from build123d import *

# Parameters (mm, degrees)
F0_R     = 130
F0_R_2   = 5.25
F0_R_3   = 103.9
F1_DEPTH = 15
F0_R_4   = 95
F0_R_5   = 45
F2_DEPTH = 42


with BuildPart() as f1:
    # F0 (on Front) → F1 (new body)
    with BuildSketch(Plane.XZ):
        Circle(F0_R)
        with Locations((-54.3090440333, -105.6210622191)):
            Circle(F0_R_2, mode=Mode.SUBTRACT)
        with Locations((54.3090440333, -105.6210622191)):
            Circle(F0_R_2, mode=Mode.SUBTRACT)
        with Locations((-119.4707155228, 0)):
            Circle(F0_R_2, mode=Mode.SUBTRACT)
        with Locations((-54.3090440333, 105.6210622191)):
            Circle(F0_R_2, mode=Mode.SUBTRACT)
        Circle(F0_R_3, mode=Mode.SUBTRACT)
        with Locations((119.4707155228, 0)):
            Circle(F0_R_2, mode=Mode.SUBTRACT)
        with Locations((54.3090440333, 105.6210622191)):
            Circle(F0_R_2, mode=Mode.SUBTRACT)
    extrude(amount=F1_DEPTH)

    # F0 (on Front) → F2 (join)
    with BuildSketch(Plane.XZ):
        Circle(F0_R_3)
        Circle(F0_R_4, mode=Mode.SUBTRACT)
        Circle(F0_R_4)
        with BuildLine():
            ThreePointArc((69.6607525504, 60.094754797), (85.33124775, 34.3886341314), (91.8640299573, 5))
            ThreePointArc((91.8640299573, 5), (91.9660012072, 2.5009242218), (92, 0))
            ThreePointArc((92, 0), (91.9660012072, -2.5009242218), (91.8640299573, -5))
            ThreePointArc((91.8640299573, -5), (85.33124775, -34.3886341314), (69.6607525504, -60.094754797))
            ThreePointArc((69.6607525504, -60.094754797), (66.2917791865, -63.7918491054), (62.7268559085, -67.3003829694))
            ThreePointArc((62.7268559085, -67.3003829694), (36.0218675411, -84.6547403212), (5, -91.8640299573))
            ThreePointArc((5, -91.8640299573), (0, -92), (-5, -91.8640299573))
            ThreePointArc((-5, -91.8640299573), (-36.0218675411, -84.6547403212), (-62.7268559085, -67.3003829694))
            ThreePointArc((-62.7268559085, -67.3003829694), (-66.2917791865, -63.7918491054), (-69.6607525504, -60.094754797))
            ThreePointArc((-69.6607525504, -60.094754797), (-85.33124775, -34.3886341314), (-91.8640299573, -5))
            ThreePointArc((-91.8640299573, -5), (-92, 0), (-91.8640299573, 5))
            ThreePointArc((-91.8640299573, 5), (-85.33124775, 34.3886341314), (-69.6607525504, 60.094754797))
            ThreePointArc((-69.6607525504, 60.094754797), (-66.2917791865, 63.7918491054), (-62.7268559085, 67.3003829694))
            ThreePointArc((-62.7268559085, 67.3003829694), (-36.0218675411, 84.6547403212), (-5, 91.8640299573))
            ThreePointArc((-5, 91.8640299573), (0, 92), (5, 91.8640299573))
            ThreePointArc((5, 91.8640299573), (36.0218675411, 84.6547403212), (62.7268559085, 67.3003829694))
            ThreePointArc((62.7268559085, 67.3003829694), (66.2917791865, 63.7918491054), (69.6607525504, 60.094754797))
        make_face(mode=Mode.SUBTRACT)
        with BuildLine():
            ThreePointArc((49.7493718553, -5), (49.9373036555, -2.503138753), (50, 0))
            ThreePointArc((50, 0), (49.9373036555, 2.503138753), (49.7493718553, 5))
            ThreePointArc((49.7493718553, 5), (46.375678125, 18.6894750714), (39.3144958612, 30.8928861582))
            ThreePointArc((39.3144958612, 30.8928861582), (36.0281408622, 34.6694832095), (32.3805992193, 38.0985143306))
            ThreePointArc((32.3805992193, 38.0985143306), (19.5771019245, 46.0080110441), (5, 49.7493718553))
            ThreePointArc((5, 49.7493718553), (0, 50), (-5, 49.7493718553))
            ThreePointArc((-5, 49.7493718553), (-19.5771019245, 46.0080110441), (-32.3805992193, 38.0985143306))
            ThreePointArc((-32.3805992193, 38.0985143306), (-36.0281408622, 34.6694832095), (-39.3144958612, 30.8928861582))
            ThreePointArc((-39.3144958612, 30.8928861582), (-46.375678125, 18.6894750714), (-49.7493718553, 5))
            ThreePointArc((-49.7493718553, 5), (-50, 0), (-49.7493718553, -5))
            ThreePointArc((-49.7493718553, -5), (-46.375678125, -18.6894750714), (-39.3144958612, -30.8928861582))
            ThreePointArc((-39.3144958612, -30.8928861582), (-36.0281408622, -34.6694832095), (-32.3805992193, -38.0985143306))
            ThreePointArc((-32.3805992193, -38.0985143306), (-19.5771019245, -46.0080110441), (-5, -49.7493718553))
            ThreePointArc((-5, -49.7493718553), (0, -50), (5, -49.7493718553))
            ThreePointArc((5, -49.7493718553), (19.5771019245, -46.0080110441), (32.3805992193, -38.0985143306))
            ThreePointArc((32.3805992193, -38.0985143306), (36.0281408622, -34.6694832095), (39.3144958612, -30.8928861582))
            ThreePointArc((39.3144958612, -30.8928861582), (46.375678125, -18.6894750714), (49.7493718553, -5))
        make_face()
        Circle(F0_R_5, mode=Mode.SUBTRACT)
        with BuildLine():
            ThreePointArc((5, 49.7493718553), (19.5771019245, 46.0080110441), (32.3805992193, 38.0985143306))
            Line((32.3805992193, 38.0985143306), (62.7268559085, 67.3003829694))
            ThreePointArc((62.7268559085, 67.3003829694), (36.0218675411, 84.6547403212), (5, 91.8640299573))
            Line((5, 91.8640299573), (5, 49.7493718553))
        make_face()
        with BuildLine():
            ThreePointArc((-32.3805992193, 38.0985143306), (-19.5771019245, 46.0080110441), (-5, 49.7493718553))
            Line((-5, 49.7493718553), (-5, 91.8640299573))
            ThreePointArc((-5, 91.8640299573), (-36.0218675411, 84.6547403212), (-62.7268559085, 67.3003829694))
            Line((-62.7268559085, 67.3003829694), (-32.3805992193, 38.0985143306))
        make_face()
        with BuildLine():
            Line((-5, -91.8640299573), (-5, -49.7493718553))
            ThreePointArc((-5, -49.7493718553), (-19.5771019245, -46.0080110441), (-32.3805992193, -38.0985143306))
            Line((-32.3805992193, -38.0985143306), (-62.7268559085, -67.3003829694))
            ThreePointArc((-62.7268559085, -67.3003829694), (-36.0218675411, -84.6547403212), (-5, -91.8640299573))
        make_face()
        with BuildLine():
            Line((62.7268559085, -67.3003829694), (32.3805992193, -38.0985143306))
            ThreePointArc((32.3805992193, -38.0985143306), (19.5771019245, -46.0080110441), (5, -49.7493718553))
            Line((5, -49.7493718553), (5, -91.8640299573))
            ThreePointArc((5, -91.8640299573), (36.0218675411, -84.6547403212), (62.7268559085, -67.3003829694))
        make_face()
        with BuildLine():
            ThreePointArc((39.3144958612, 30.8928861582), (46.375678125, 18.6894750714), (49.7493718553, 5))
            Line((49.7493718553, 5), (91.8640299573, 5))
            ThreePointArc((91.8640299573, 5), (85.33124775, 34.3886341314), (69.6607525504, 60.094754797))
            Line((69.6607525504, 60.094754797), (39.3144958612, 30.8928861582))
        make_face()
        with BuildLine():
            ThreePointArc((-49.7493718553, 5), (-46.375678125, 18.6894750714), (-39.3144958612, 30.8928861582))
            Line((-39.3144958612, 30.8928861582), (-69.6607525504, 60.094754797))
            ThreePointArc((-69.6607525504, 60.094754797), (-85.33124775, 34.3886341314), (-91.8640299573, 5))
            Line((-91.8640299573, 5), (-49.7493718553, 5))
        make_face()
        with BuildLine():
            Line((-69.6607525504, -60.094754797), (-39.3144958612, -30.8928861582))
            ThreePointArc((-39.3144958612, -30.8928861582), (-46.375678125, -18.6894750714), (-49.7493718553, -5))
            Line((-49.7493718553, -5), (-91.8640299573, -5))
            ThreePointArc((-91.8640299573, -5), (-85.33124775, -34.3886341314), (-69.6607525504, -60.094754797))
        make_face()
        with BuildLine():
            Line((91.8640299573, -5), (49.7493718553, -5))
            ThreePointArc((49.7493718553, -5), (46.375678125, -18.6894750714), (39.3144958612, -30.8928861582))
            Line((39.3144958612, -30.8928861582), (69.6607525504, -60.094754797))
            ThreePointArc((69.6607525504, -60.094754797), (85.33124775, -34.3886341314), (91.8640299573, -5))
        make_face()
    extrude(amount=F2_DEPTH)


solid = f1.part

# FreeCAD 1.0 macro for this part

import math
import FreeCAD as App
import Part
import Sketcher
from FreeCAD import Vector
Q = App.Units.Quantity

doc = App.newDocument("Part")
body = doc.addObject("PartDesign::Body", "Body")

sketch1 = body.newObject("Sketcher::SketchObject", "Sketch")
sketch1.AttachmentSupport = (doc.getObject("XZ_Plane"), [""])
sketch1.MapMode = "FlatFace"
sketch1.addGeometry(Part.Circle(Vector(0, 0, 0), Vector(0, 0, 1), 130), False)
sketch1.addGeometry(Part.Circle(Vector(-54, -106, 0), Vector(0, 0, 1), 5), False)
sketch1.addGeometry(Part.Circle(Vector(54, -106, 0), Vector(0, 0, 1), 5), False)
sketch1.addGeometry(Part.Circle(Vector(-119, 0, 0), Vector(0, 0, 1), 5), False)
sketch1.addGeometry(Part.Circle(Vector(0, 0, 0), Vector(0, 0, 1), 104), False)
sketch1.addGeometry(Part.Circle(Vector(-54, 106, 0), Vector(0, 0, 1), 5), False)
sketch1.addGeometry(Part.Circle(Vector(119, 0, 0), Vector(0, 0, 1), 5), False)
sketch1.addGeometry(Part.Circle(Vector(54, 106, 0), Vector(0, 0, 1), 5), False)
sketch1.addConstraint(Sketcher.Constraint("Coincident", 0, 3, -1, 1))
sketch1.addConstraint(Sketcher.Constraint("Coincident", 4, 3, -1, 1))
sketch1.addConstraint(Sketcher.Constraint("Equal", 1, 2))
sketch1.addConstraint(Sketcher.Constraint("Equal", 2, 3))
sketch1.addConstraint(Sketcher.Constraint("Equal", 3, 5))
sketch1.addConstraint(Sketcher.Constraint("Equal", 5, 6))
sketch1.addConstraint(Sketcher.Constraint("Equal", 6, 7))
sketch1.addConstraint(Sketcher.Constraint("Symmetric", 2, 3, 5, 3, -1, 1))
sketch1.addConstraint(Sketcher.Constraint("Symmetric", 3, 3, 6, 3, -1, 1))
sketch1.addConstraint(Sketcher.Constraint("Symmetric", 1, 3, 7, 3, -1, 1))
sketch1.addConstraint(Sketcher.Constraint("Symmetric", 1, 3, 2, 3, -2))
sketch1.addConstraint(Sketcher.Constraint("PointOnObject", 3, 3, -1))
sketch1.addConstraint(Sketcher.Constraint("Diameter", 0, Q("260 mm")))
sketch1.addConstraint(Sketcher.Constraint("Diameter", 1, Q("10.5 mm")))
sketch1.addConstraint(Sketcher.Constraint("Diameter", 4, Q("207.8 mm")))
sketch1.addConstraint(Sketcher.Constraint("DistanceX", 1, 3, 2, 3, Q("108.618088 mm")))
sketch1.addConstraint(Sketcher.Constraint("DistanceX", 3, 3, 1, 3, Q("65.161671 mm")))
sketch1.addConstraint(Sketcher.Constraint("DistanceY", 1, 3, -1, 1, Q("105.621062 mm")))
pad1 = body.newObject("PartDesign::Pad", "Pad")
pad1.Profile = sketch1
pad1.Length = 15

sketch2 = body.newObject("Sketcher::SketchObject", "Sketch001")
sketch2.AttachmentSupport = (doc.getObject("XZ_Plane"), [""])
sketch2.MapMode = "FlatFace"
sketch2.addGeometry(Part.Circle(Vector(0, 0, 0), Vector(0, 0, 1), 104), False)
sketch2.addGeometry(Part.ArcOfCircle(Part.Circle(Vector(0, 0, 0), Vector(0, 0, 1), 92), math.radians(40.78), math.radians(47.01)), False)
sketch2.addGeometry(Part.LineSegment(Vector(70, 60, 0), Vector(39, 31, 0)), False)
sketch2.addGeometry(Part.ArcOfCircle(Part.Circle(Vector(0, 0, 0), Vector(0, 0, 1), 50), math.radians(38.16), math.radians(49.64)), False)
sketch2.addGeometry(Part.LineSegment(Vector(32, 38, 0), Vector(63, 67, 0)), False)
sketch2.addGeometry(Part.ArcOfCircle(Part.Circle(Vector(0, 0, 0), Vector(0, 0, 1), 92), math.radians(0), math.radians(3.12)), False)
sketch2.addGeometry(Part.ArcOfCircle(Part.Circle(Vector(0, 0, 0), Vector(0, 0, 1), 92), math.radians(-3.12), math.radians(0)), False)
sketch2.addGeometry(Part.LineSegment(Vector(92, -5, 0), Vector(50, -5, 0)), False)
sketch2.addGeometry(Part.ArcOfCircle(Part.Circle(Vector(0, 0, 0), Vector(0, 0, 1), 50), math.radians(-5.74), math.radians(0)), False)
sketch2.addGeometry(Part.ArcOfCircle(Part.Circle(Vector(0, 0, 0), Vector(0, 0, 1), 50), math.radians(0), math.radians(5.74)), False)
sketch2.addGeometry(Part.LineSegment(Vector(50, 5, 0), Vector(92, 5, 0)), False)
sketch2.addGeometry(Part.ArcOfCircle(Part.Circle(Vector(0, 0, 0), Vector(0, 0, 1), 92), math.radians(-47.01), math.radians(-40.78)), False)
sketch2.addGeometry(Part.LineSegment(Vector(63, -67, 0), Vector(32, -38, 0)), False)
sketch2.addGeometry(Part.ArcOfCircle(Part.Circle(Vector(0, 0, 0), Vector(0, 0, 1), 50), math.radians(-49.64), math.radians(-38.16)), False)
sketch2.addGeometry(Part.LineSegment(Vector(39, -31, 0), Vector(70, -60, 0)), False)
sketch2.addGeometry(Part.ArcOfCircle(Part.Circle(Vector(0, 0, 0), Vector(0, 0, 1), 92), math.radians(-93.12), math.radians(-86.88)), False)
sketch2.addGeometry(Part.LineSegment(Vector(-5, -92, 0), Vector(-5, -50, 0)), False)
sketch2.addGeometry(Part.ArcOfCircle(Part.Circle(Vector(0, 0, 0), Vector(0, 0, 1), 50), math.radians(-95.74), math.radians(-84.26)), False)
sketch2.addGeometry(Part.LineSegment(Vector(5, -50, 0), Vector(5, -92, 0)), False)
sketch2.addGeometry(Part.ArcOfCircle(Part.Circle(Vector(0, 0, 0), Vector(0, 0, 1), 92), math.radians(-139.22), math.radians(-132.99)), False)
sketch2.addGeometry(Part.LineSegment(Vector(-70, -60, 0), Vector(-39, -31, 0)), False)
sketch2.addGeometry(Part.ArcOfCircle(Part.Circle(Vector(0, 0, 0), Vector(0, 0, 1), 50), math.radians(-141.84), math.radians(-130.36)), False)
sketch2.addGeometry(Part.LineSegment(Vector(-32, -38, 0), Vector(-63, -67, 0)), False)
sketch2.addGeometry(Part.ArcOfCircle(Part.Circle(Vector(0, 0, 0), Vector(0, 0, 1), 92), math.radians(176.88), math.radians(183.12)), False)
sketch2.addGeometry(Part.LineSegment(Vector(-92, 5, 0), Vector(-50, 5, 0)), False)
sketch2.addGeometry(Part.ArcOfCircle(Part.Circle(Vector(0, 0, 0), Vector(0, 0, 1), 50), math.radians(174.26), math.radians(185.74)), False)
sketch2.addGeometry(Part.LineSegment(Vector(-50, -5, 0), Vector(-92, -5, 0)), False)
sketch2.addGeometry(Part.ArcOfCircle(Part.Circle(Vector(0, 0, 0), Vector(0, 0, 1), 92), math.radians(132.99), math.radians(139.22)), False)
sketch2.addGeometry(Part.LineSegment(Vector(-63, 67, 0), Vector(-32, 38, 0)), False)
sketch2.addGeometry(Part.ArcOfCircle(Part.Circle(Vector(0, 0, 0), Vector(0, 0, 1), 50), math.radians(130.36), math.radians(141.84)), False)
sketch2.addGeometry(Part.LineSegment(Vector(-39, 31, 0), Vector(-70, 60, 0)), False)
sketch2.addGeometry(Part.ArcOfCircle(Part.Circle(Vector(0, 0, 0), Vector(0, 0, 1), 92), math.radians(86.88), math.radians(93.12)), False)
sketch2.addGeometry(Part.LineSegment(Vector(5, 92, 0), Vector(5, 50, 0)), False)
sketch2.addGeometry(Part.ArcOfCircle(Part.Circle(Vector(0, 0, 0), Vector(0, 0, 1), 50), math.radians(84.26), math.radians(95.74)), False)
sketch2.addGeometry(Part.LineSegment(Vector(-5, 50, 0), Vector(-5, 92, 0)), False)
sketch2.addGeometry(Part.Circle(Vector(0, 0, 0), Vector(0, 0, 1), 45), False)
sketch2.addConstraint(Sketcher.Constraint("Coincident", 1, 1, 2, 1))
sketch2.addConstraint(Sketcher.Constraint("Coincident", 2, 2, 3, 1))
sketch2.addConstraint(Sketcher.Constraint("Coincident", 3, 2, 4, 1))
sketch2.addConstraint(Sketcher.Constraint("Coincident", 4, 2, 1, 2))
sketch2.addConstraint(Sketcher.Constraint("Tangent", 5, 1, 6, 2))
sketch2.addConstraint(Sketcher.Constraint("Coincident", 6, 1, 7, 1))
sketch2.addConstraint(Sketcher.Constraint("Coincident", 7, 2, 8, 1))
sketch2.addConstraint(Sketcher.Constraint("Tangent", 8, 2, 9, 1))
sketch2.addConstraint(Sketcher.Constraint("Coincident", 9, 2, 10, 1))
sketch2.addConstraint(Sketcher.Constraint("Coincident", 10, 2, 5, 2))
sketch2.addConstraint(Sketcher.Constraint("Coincident", 11, 1, 12, 1))
sketch2.addConstraint(Sketcher.Constraint("Coincident", 12, 2, 13, 1))
sketch2.addConstraint(Sketcher.Constraint("Coincident", 13, 2, 14, 1))
sketch2.addConstraint(Sketcher.Constraint("Coincident", 14, 2, 11, 2))
sketch2.addConstraint(Sketcher.Constraint("Coincident", 15, 1, 16, 1))
sketch2.addConstraint(Sketcher.Constraint("Coincident", 16, 2, 17, 1))
sketch2.addConstraint(Sketcher.Constraint("Coincident", 17, 2, 18, 1))
sketch2.addConstraint(Sketcher.Constraint("Coincident", 18, 2, 15, 2))
sketch2.addConstraint(Sketcher.Constraint("Coincident", 19, 1, 20, 1))
sketch2.addConstraint(Sketcher.Constraint("Coincident", 20, 2, 21, 1))
sketch2.addConstraint(Sketcher.Constraint("Coincident", 21, 2, 22, 1))
sketch2.addConstraint(Sketcher.Constraint("Coincident", 22, 2, 19, 2))
sketch2.addConstraint(Sketcher.Constraint("Coincident", 23, 1, 24, 1))
sketch2.addConstraint(Sketcher.Constraint("Coincident", 24, 2, 25, 1))
sketch2.addConstraint(Sketcher.Constraint("Coincident", 25, 2, 26, 1))
sketch2.addConstraint(Sketcher.Constraint("Coincident", 26, 2, 23, 2))
sketch2.addConstraint(Sketcher.Constraint("Coincident", 27, 1, 28, 1))
sketch2.addConstraint(Sketcher.Constraint("Coincident", 28, 2, 29, 1))
sketch2.addConstraint(Sketcher.Constraint("Coincident", 29, 2, 30, 1))
sketch2.addConstraint(Sketcher.Constraint("Coincident", 30, 2, 27, 2))
sketch2.addConstraint(Sketcher.Constraint("Coincident", 31, 1, 32, 1))
sketch2.addConstraint(Sketcher.Constraint("Coincident", 32, 2, 33, 1))
sketch2.addConstraint(Sketcher.Constraint("Coincident", 33, 2, 34, 1))
sketch2.addConstraint(Sketcher.Constraint("Coincident", 34, 2, 31, 2))
sketch2.addConstraint(Sketcher.Constraint("Horizontal", 7))
sketch2.addConstraint(Sketcher.Constraint("Horizontal", 10))
sketch2.addConstraint(Sketcher.Constraint("Vertical", 16))
sketch2.addConstraint(Sketcher.Constraint("Vertical", 18))
sketch2.addConstraint(Sketcher.Constraint("Horizontal", 24))
sketch2.addConstraint(Sketcher.Constraint("Horizontal", 26))
sketch2.addConstraint(Sketcher.Constraint("Vertical", 32))
sketch2.addConstraint(Sketcher.Constraint("Vertical", 34))
sketch2.addConstraint(Sketcher.Constraint("Coincident", 0, 3, -1, 1))
sketch2.addConstraint(Sketcher.Constraint("Coincident", 1, 3, -1, 1))
sketch2.addConstraint(Sketcher.Constraint("Coincident", 3, 3, -1, 1))
sketch2.addConstraint(Sketcher.Constraint("Coincident", 5, 3, -1, 1))
sketch2.addConstraint(Sketcher.Constraint("Coincident", 8, 3, -1, 1))
sketch2.addConstraint(Sketcher.Constraint("Coincident", 11, 3, -1, 1))
sketch2.addConstraint(Sketcher.Constraint("Coincident", 13, 3, -1, 1))
sketch2.addConstraint(Sketcher.Constraint("Coincident", 15, 3, -1, 1))
sketch2.addConstraint(Sketcher.Constraint("Coincident", 17, 3, -1, 1))
sketch2.addConstraint(Sketcher.Constraint("Coincident", 19, 3, -1, 1))
sketch2.addConstraint(Sketcher.Constraint("Coincident", 21, 3, -1, 1))
sketch2.addConstraint(Sketcher.Constraint("Coincident", 23, 3, -1, 1))
sketch2.addConstraint(Sketcher.Constraint("Coincident", 25, 3, -1, 1))
sketch2.addConstraint(Sketcher.Constraint("Coincident", 27, 3, -1, 1))
sketch2.addConstraint(Sketcher.Constraint("Coincident", 29, 3, -1, 1))
sketch2.addConstraint(Sketcher.Constraint("Coincident", 31, 3, -1, 1))
sketch2.addConstraint(Sketcher.Constraint("Coincident", 33, 3, -1, 1))
sketch2.addConstraint(Sketcher.Constraint("Coincident", 35, 3, -1, 1))
sketch2.addConstraint(Sketcher.Constraint("Equal", 1, 5))
sketch2.addConstraint(Sketcher.Constraint("Equal", 5, 6))
sketch2.addConstraint(Sketcher.Constraint("Equal", 3, 8))
sketch2.addConstraint(Sketcher.Constraint("Equal", 8, 9))
sketch2.addConstraint(Sketcher.Constraint("Equal", 6, 11))
sketch2.addConstraint(Sketcher.Constraint("Equal", 9, 13))
sketch2.addConstraint(Sketcher.Constraint("Equal", 11, 15))
sketch2.addConstraint(Sketcher.Constraint("Equal", 13, 17))
sketch2.addConstraint(Sketcher.Constraint("Equal", 15, 19))
sketch2.addConstraint(Sketcher.Constraint("Equal", 17, 21))
sketch2.addConstraint(Sketcher.Constraint("Equal", 19, 23))
sketch2.addConstraint(Sketcher.Constraint("Equal", 21, 25))
sketch2.addConstraint(Sketcher.Constraint("Equal", 23, 27))
sketch2.addConstraint(Sketcher.Constraint("Equal", 25, 29))
sketch2.addConstraint(Sketcher.Constraint("Equal", 27, 31))
sketch2.addConstraint(Sketcher.Constraint("Equal", 29, 33))
sketch2.addConstraint(Sketcher.Constraint("PointOnObject", 5, 1, -1))
sketch2.addConstraint(Sketcher.Constraint("PointOnObject", 8, 2, -1))
sketch2.addConstraint(Sketcher.Constraint("Parallel", 2, 4))
sketch2.addConstraint(Sketcher.Constraint("Parallel", 12, 14))
sketch2.addConstraint(Sketcher.Constraint("Parallel", 4, 20))
sketch2.addConstraint(Sketcher.Constraint("Parallel", 20, 22))
sketch2.addConstraint(Sketcher.Constraint("Parallel", 14, 28))
sketch2.addConstraint(Sketcher.Constraint("Parallel", 28, 30))
sketch2.addConstraint(Sketcher.Constraint("Horizontal", 16, 2, 17, 2))
sketch2.addConstraint(Sketcher.Constraint("Horizontal", 14, 2, 19, 1))
sketch2.addConstraint(Sketcher.Constraint("Horizontal", 13, 2, 20, 2))
sketch2.addConstraint(Sketcher.Constraint("Horizontal", 12, 2, 21, 2))
sketch2.addConstraint(Sketcher.Constraint("Horizontal", 10, 2, 23, 1))
sketch2.addConstraint(Sketcher.Constraint("Horizontal", 7, 2, 25, 2))
sketch2.addConstraint(Sketcher.Constraint("Horizontal", 4, 2, 27, 1))
sketch2.addConstraint(Sketcher.Constraint("Horizontal", 2, 2, 29, 2))
sketch2.addConstraint(Sketcher.Constraint("Horizontal", 32, 2, 33, 2))
sketch2.addConstraint(Sketcher.Constraint("Vertical", 7, 2, 9, 2))
sketch2.addConstraint(Sketcher.Constraint("Vertical", 4, 2, 11, 1))
sketch2.addConstraint(Sketcher.Constraint("Vertical", 2, 2, 13, 2))
sketch2.addConstraint(Sketcher.Constraint("Vertical", 18, 2, 31, 1))
sketch2.addConstraint(Sketcher.Constraint("Equal", 26, 16))
sketch2.addConstraint(Sketcher.Constraint("Equal", 2, 4))
sketch2.addConstraint(Sketcher.Constraint("Diameter", 35, Q("90 mm")))
sketch2.addConstraint(Sketcher.Constraint("Radius", 1, Q("92 mm")))
sketch2.addConstraint(Sketcher.Constraint("Radius", 3, Q("50 mm")))
sketch2.addConstraint(Sketcher.Constraint("Diameter", 0, Q("207.8 mm")))
sketch2.addConstraint(Sketcher.Constraint("DistanceY", 6, 1, -1, 1, Q("5 mm")))
sketch2.addConstraint(Sketcher.Constraint("DistanceX", -1, 1, 3, 2, Q("32.380599 mm")))
sketch2.addConstraint(Sketcher.Constraint("Distance", 2, Q("42.114658 mm")))
pad2 = body.newObject("PartDesign::Pad", "Pad001")
pad2.Profile = sketch2
pad2.Length = 42

doc.recompute()
